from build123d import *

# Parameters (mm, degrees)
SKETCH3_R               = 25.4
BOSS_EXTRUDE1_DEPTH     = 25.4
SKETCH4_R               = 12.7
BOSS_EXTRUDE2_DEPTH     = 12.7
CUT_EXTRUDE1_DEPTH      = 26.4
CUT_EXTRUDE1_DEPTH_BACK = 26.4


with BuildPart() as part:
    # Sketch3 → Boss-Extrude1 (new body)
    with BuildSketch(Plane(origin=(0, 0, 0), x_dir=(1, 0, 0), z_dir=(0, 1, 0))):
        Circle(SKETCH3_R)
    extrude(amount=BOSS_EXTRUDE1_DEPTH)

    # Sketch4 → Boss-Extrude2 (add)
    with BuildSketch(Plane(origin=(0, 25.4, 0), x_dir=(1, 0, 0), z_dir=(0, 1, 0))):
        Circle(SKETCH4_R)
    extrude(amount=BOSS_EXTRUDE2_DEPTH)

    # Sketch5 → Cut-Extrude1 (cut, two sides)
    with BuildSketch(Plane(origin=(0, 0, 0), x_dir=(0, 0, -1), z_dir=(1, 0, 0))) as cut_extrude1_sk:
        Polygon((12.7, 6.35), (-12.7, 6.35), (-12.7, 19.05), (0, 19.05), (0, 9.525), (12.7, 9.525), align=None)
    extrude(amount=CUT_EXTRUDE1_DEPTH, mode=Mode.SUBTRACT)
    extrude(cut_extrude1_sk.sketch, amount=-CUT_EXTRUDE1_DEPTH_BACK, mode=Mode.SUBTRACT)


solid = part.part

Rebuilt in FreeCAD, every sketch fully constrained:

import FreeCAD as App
import Part
import Sketcher
from FreeCAD import Vector
Q = App.Units.Quantity


def add_polygon(sketch, points):
    """Adds a closed chain of lines whose ends are joined by coincident constraints."""
    first, n = sketch.GeometryCount, len(points)
    for a, b in zip(points, points[1:] + points[:1]):
        sketch.addGeometry(Part.LineSegment(App.Vector(*a, 0), App.Vector(*b, 0)), False)
    for i in range(n):
        sketch.addConstraint(Sketcher.Constraint("Coincident", first + i, 2, first + (i + 1) % n, 1))

doc = App.newDocument("Part")
body = doc.addObject("PartDesign::Body", "Body")

sketch1 = body.newObject("Sketcher::SketchObject", "Sketch")
sketch1.AttachmentSupport = (doc.getObject("XZ_Plane"), [""])
sketch1.MapMode = "FlatFace"
sketch1.addGeometry(Part.Circle(Vector(0, 0, 0), Vector(0, 0, 1), 25), False)
sketch1.addConstraint(Sketcher.Constraint("Coincident", 0, 3, -1, 1))
sketch1.addConstraint(Sketcher.Constraint("Diameter", 0, Q("2 in")))
pad1 = body.newObject("PartDesign::Pad", "Pad")
pad1.Profile = sketch1
pad1.Length = Q("1 in")
pad1.Reversed = True

sketch2 = body.newObject("Sketcher::SketchObject", "Sketch001")
sketch2.AttachmentSupport = (doc.getObject("XZ_Plane"), [""])
sketch2.MapMode = "FlatFace"
sketch2.AttachmentOffset = App.Placement(Vector(0, 0, -1 * 25.4), App.Rotation())
sketch2.addGeometry(Part.Circle(Vector(0, 0, 0), Vector(0, 0, 1), 13), False)
sketch2.addConstraint(Sketcher.Constraint("Coincident", 0, 3, -1, 1))
sketch2.addConstraint(Sketcher.Constraint("Diameter", 0, Q("1 in")))
pad2 = body.newObject("PartDesign::Pad", "Pad001")
pad2.Profile = sketch2
pad2.Length = Q("0.5 in")
pad2.Reversed = True

sketch3 = body.newObject("Sketcher::SketchObject", "Sketch002")
sketch3.AttachmentSupport = (doc.getObject("YZ_Plane"), [""])
sketch3.MapMode = "FlatFace"
add_polygon(sketch3, [(6.3, 12.7), (6.3, -12.7), (9.5, -12.7), (9.5, 0), (19.1, 0), (19.1, 12.7)])
sketch3.addConstraint(Sketcher.Constraint("Vertical", 0))
sketch3.addConstraint(Sketcher.Constraint("Horizontal", 1))
sketch3.addConstraint(Sketcher.Constraint("Vertical", 2))
sketch3.addConstraint(Sketcher.Constraint("Horizontal", 3))
sketch3.addConstraint(Sketcher.Constraint("Vertical", 4))
sketch3.addConstraint(Sketcher.Constraint("Horizontal", 5))
sketch3.addConstraint(Sketcher.Constraint("PointOnObject", 2, 2, -1))
sketch3.addConstraint(Sketcher.Constraint("Equal", 5, 2))
sketch3.addConstraint(Sketcher.Constraint("Equal", 2, 4))
sketch3.addConstraint(Sketcher.Constraint("DistanceY", 0, 2, 0, 1, Q("1 in")))
sketch3.addConstraint(Sketcher.Constraint("DistanceX", 1, 1, 1, 2, Q("0.125 in")))
sketch3.addConstraint(Sketcher.Constraint("DistanceX", -1, 1, 0, 2, Q("0.25 in")))
pocket1 = body.newObject("PartDesign::Pocket", "Pocket")
pocket1.Profile = sketch3
pocket1.Type = "ThroughAll"
pocket1.Midplane = True

doc.recompute()
